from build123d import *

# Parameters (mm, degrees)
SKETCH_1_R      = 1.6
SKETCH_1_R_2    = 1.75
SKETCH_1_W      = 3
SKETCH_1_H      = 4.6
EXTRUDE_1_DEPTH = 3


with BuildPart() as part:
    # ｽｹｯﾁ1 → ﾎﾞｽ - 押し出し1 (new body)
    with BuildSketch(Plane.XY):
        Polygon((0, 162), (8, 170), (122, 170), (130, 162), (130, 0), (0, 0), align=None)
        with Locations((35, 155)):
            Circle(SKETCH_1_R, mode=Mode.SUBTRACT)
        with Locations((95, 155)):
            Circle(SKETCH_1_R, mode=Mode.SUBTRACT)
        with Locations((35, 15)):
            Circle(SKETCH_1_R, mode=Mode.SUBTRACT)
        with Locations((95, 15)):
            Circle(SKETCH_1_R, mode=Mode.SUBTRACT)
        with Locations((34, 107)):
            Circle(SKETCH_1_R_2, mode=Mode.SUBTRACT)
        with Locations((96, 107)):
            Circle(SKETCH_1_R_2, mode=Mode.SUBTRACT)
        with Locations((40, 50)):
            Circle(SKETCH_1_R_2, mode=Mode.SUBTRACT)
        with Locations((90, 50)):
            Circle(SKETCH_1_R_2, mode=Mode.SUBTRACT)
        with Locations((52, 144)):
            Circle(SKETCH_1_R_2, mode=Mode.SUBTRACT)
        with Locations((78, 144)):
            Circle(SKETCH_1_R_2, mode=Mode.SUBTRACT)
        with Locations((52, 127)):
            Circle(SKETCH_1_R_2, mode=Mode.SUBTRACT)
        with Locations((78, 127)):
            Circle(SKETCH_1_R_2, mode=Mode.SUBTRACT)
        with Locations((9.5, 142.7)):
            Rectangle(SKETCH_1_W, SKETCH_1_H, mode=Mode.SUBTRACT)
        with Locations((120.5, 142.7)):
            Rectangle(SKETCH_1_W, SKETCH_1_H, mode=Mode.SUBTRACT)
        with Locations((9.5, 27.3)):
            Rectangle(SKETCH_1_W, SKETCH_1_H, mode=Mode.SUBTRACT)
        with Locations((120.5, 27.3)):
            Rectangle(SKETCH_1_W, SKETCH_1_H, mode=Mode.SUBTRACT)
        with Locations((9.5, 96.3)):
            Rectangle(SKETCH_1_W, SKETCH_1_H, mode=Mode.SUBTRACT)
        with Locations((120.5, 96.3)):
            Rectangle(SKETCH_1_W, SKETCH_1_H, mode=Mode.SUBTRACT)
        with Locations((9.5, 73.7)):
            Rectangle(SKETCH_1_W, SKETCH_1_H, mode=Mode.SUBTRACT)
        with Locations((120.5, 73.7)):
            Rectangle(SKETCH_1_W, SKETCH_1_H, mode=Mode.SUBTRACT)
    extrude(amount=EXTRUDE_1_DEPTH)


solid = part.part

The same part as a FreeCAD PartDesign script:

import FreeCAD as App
import Part
import Sketcher
Q = App.Units.Quantity

doc = App.newDocument("Part")
body = doc.addObject("PartDesign::Body", "Body")

sketch1 = doc.addObject("Sketcher::SketchObject", "Sketch")
body.addObject(sketch1)
sketch1.AttachmentSupport = (doc.XY_Plane, [""])
sketch1.MapMode = "FlatFace"
sketch1.addGeometry([
    Part.LineSegment(App.Vector(8, 170, 0), App.Vector(0, 162, 0)),
    Part.LineSegment(App.Vector(0, 162, 0), App.Vector(0, 0, 0)),
    Part.LineSegment(App.Vector(0, 0, 0), App.Vector(130, 0, 0)),
    Part.LineSegment(App.Vector(130, 0, 0), App.Vector(130, 162, 0)),
    Part.LineSegment(App.Vector(130, 162, 0), App.Vector(122, 170, 0)),
    Part.LineSegment(App.Vector(122, 170, 0), App.Vector(8, 170, 0)),
    Part.LineSegment(App.Vector(119, 25, 0), App.Vector(119, 29.6, 0)),
    Part.LineSegment(App.Vector(119, 29.6, 0), App.Vector(122, 29.6, 0)),
    Part.LineSegment(App.Vector(122, 29.6, 0), App.Vector(122, 25, 0)),
    Part.LineSegment(App.Vector(122, 25, 0), App.Vector(119, 25, 0)),
    Part.Circle(App.Vector(95, 15, 0), App.Vector(0, 0, 1), 1.6),
    Part.LineSegment(App.Vector(119, 71.4, 0), App.Vector(119, 76, 0)),
    Part.LineSegment(App.Vector(119, 76, 0), App.Vector(122, 76, 0)),
    Part.LineSegment(App.Vector(122, 76, 0), App.Vector(122, 71.4, 0)),
    Part.LineSegment(App.Vector(122, 71.4, 0), App.Vector(119, 71.4, 0)),
    Part.Circle(App.Vector(90, 50, 0), App.Vector(0, 0, 1), 1.8),
    Part.Circle(App.Vector(35, 15, 0), App.Vector(0, 0, 1), 1.6),
    Part.LineSegment(App.Vector(8, 25, 0), App.Vector(8, 29.6, 0)),
    Part.LineSegment(App.Vector(8, 29.6, 0), App.Vector(11, 29.6, 0)),
    Part.LineSegment(App.Vector(11, 29.6, 0), App.Vector(11, 25, 0)),
    Part.LineSegment(App.Vector(11, 25, 0), App.Vector(8, 25, 0)),
    Part.Circle(App.Vector(40, 50, 0), App.Vector(0, 0, 1), 1.8),
    Part.LineSegment(App.Vector(8, 71.4, 0), App.Vector(8, 76, 0)),
    Part.LineSegment(App.Vector(8, 76, 0), App.Vector(11, 76, 0)),
    Part.LineSegment(App.Vector(11, 76, 0), App.Vector(11, 71.4, 0)),
    Part.LineSegment(App.Vector(11, 71.4, 0), App.Vector(8, 71.4, 0)),
    Part.LineSegment(App.Vector(119, 94, 0), App.Vector(119, 98.6, 0)),
    Part.LineSegment(App.Vector(119, 98.6, 0), App.Vector(122, 98.6, 0)),
    Part.LineSegment(App.Vector(122, 98.6, 0), App.Vector(122, 94, 0)),
    Part.LineSegment(App.Vector(122, 94, 0), App.Vector(119, 94, 0)),
    Part.Circle(App.Vector(96, 107, 0), App.Vector(0, 0, 1), 1.8),
    Part.LineSegment(App.Vector(119, 140.4, 0), App.Vector(119, 145, 0)),
    Part.LineSegment(App.Vector(119, 145, 0), App.Vector(122, 145, 0)),
    Part.LineSegment(App.Vector(122, 145, 0), App.Vector(122, 140.4, 0)),
    Part.LineSegment(App.Vector(122, 140.4, 0), App.Vector(119, 140.4, 0)),
    Part.Circle(App.Vector(95, 155, 0), App.Vector(0, 0, 1), 1.6),
    Part.Circle(App.Vector(78, 127, 0), App.Vector(0, 0, 1), 1.8),
    Part.Circle(App.Vector(78, 144, 0), App.Vector(0, 0, 1), 1.8),
    Part.LineSegment(App.Vector(8, 94, 0), App.Vector(8, 98.6, 0)),
    Part.LineSegment(App.Vector(8, 98.6, 0), App.Vector(11, 98.6, 0)),
    Part.LineSegment(App.Vector(11, 98.6, 0), App.Vector(11, 94, 0)),
    Part.LineSegment(App.Vector(11, 94, 0), App.Vector(8, 94, 0)),
    Part.Circle(App.Vector(34, 107, 0), App.Vector(0, 0, 1), 1.8),
    Part.Circle(App.Vector(52, 127, 0), App.Vector(0, 0, 1), 1.8),
    Part.Circle(App.Vector(52, 144, 0), App.Vector(0, 0, 1), 1.8),
    Part.Circle(App.Vector(35, 155, 0), App.Vector(0, 0, 1), 1.6),
    Part.LineSegment(App.Vector(8, 140.4, 0), App.Vector(8, 145, 0)),
    Part.LineSegment(App.Vector(8, 145, 0), App.Vector(11, 145, 0)),
    Part.LineSegment(App.Vector(11, 145, 0), App.Vector(11, 140.4, 0)),
    Part.LineSegment(App.Vector(11, 140.4, 0), App.Vector(8, 140.4, 0)),
], False)
sketch1.addConstraint([
    Sketcher.Constraint("Coincident", 0, 2, 1, 1),
    Sketcher.Constraint("Coincident", 1, 2, 2, 1),
    Sketcher.Constraint("Coincident", 2, 2, 3, 1),
    Sketcher.Constraint("Coincident", 3, 2, 4, 1),
    Sketcher.Constraint("Coincident", 4, 2, 5, 1),
    Sketcher.Constraint("Coincident", 5, 2, 0, 1),
    Sketcher.Constraint("Coincident", 6, 2, 7, 1),
    Sketcher.Constraint("Coincident", 7, 2, 8, 1),
    Sketcher.Constraint("Coincident", 8, 2, 9, 1),
    Sketcher.Constraint("Coincident", 9, 2, 6, 1),
    Sketcher.Constraint("Coincident", 11, 2, 12, 1),
    Sketcher.Constraint("Coincident", 12, 2, 13, 1),
    Sketcher.Constraint("Coincident", 13, 2, 14, 1),
    Sketcher.Constraint("Coincident", 14, 2, 11, 1),
    Sketcher.Constraint("Coincident", 17, 2, 18, 1),
    Sketcher.Constraint("Coincident", 18, 2, 19, 1),
    Sketcher.Constraint("Coincident", 19, 2, 20, 1),
    Sketcher.Constraint("Coincident", 20, 2, 17, 1),
    Sketcher.Constraint("Coincident", 22, 2, 23, 1),
    Sketcher.Constraint("Coincident", 23, 2, 24, 1),
    Sketcher.Constraint("Coincident", 24, 2, 25, 1),
    Sketcher.Constraint("Coincident", 25, 2, 22, 1),
    Sketcher.Constraint("Coincident", 26, 2, 27, 1),
    Sketcher.Constraint("Coincident", 27, 2, 28, 1),
    Sketcher.Constraint("Coincident", 28, 2, 29, 1),
    Sketcher.Constraint("Coincident", 29, 2, 26, 1),
    Sketcher.Constraint("Coincident", 31, 2, 32, 1),
    Sketcher.Constraint("Coincident", 32, 2, 33, 1),
    Sketcher.Constraint("Coincident", 33, 2, 34, 1),
    Sketcher.Constraint("Coincident", 34, 2, 31, 1),
    Sketcher.Constraint("Coincident", 38, 2, 39, 1),
    Sketcher.Constraint("Coincident", 39, 2, 40, 1),
    Sketcher.Constraint("Coincident", 40, 2, 41, 1),
    Sketcher.Constraint("Coincident", 41, 2, 38, 1),
    Sketcher.Constraint("Coincident", 46, 2, 47, 1),
    Sketcher.Constraint("Coincident", 47, 2, 48, 1),
    Sketcher.Constraint("Coincident", 48, 2, 49, 1),
    Sketcher.Constraint("Coincident", 49, 2, 46, 1),
    Sketcher.Constraint("Vertical", 1),
    Sketcher.Constraint("Horizontal", 2),
    Sketcher.Constraint("Vertical", 3),
    Sketcher.Constraint("Horizontal", 5),
    Sketcher.Constraint("Vertical", 6),
    Sketcher.Constraint("Horizontal", 7),
    Sketcher.Constraint("Vertical", 8),
    Sketcher.Constraint("Horizontal", 9),
    Sketcher.Constraint("Vertical", 11),
    Sketcher.Constraint("Horizontal", 12),
    Sketcher.Constraint("Vertical", 13),
    Sketcher.Constraint("Horizontal", 14),
    Sketcher.Constraint("Vertical", 17),
    Sketcher.Constraint("Horizontal", 18),
    Sketcher.Constraint("Vertical", 19),
    Sketcher.Constraint("Horizontal", 20),
    Sketcher.Constraint("Vertical", 22),
    Sketcher.Constraint("Horizontal", 23),
    Sketcher.Constraint("Vertical", 24),
    Sketcher.Constraint("Horizontal", 25),
    Sketcher.Constraint("Vertical", 26),
    Sketcher.Constraint("Horizontal", 27),
    Sketcher.Constraint("Vertical", 28),
    Sketcher.Constraint("Horizontal", 29),
    Sketcher.Constraint("Vertical", 31),
    Sketcher.Constraint("Horizontal", 32),
    Sketcher.Constraint("Vertical", 33),
    Sketcher.Constraint("Horizontal", 34),
    Sketcher.Constraint("Vertical", 38),
    Sketcher.Constraint("Horizontal", 39),
    Sketcher.Constraint("Vertical", 40),
    Sketcher.Constraint("Horizontal", 41),
    Sketcher.Constraint("Vertical", 46),
    Sketcher.Constraint("Horizontal", 47),
    Sketcher.Constraint("Vertical", 48),
    Sketcher.Constraint("Horizontal", 49),
    Sketcher.Constraint("Coincident", 1, 2, -1, 1),
    Sketcher.Constraint("Equal", 10, 16),
    Sketcher.Constraint("Equal", 15, 21),
    Sketcher.Constraint("Equal", 21, 30),
    Sketcher.Constraint("Equal", 16, 35),
    Sketcher.Constraint("Equal", 30, 36),
    Sketcher.Constraint("Equal", 36, 37),
    Sketcher.Constraint("Equal", 37, 42),
    Sketcher.Constraint("Equal", 42, 43),
    Sketcher.Constraint("Equal", 43, 44),
    Sketcher.Constraint("Equal", 35, 45),
    Sketcher.Constraint("Perpendicular", 0, 4),
    Sketcher.Constraint("Horizontal", 10, 3, 16, 3),
    Sketcher.Constraint("Horizontal", 15, 3, 21, 3),
    Sketcher.Constraint("Horizontal", 30, 3, 42, 3),
    Sketcher.Constraint("Horizontal", 36, 3, 43, 3),
    Sketcher.Constraint("Horizontal", 37, 3, 44, 3),
    Sketcher.Constraint("Horizontal", 35, 3, 45, 3),
    Sketcher.Constraint("Horizontal", 0, 2, 3, 2),
    Sketcher.Constraint("Horizontal", 7, 2, 17, 2),
    Sketcher.Constraint("Horizontal", 9, 2, 19, 2),
    Sketcher.Constraint("Horizontal", 12, 2, 22, 2),
    Sketcher.Constraint("Horizontal", 14, 2, 24, 2),
    Sketcher.Constraint("Horizontal", 27, 2, 38, 2),
    Sketcher.Constraint("Horizontal", 29, 2, 40, 2),
    Sketcher.Constraint("Horizontal", 32, 2, 46, 2),
    Sketcher.Constraint("Horizontal", 34, 2, 48, 2),
    Sketcher.Constraint("Vertical", 10, 3, 35, 3),
    Sketcher.Constraint("Vertical", 36, 3, 37, 3),
    Sketcher.Constraint("Vertical", 43, 3, 44, 3),
    Sketcher.Constraint("Vertical", 16, 3, 45, 3),
    Sketcher.Constraint("Vertical", 4, 2, 7, 2),
    Sketcher.Constraint("Vertical", 9, 2, 11, 2),
    Sketcher.Constraint("Vertical", 8, 2, 12, 2),
    Sketcher.Constraint("Vertical", 5, 2, 17, 2),
    Sketcher.Constraint("Vertical", 20, 2, 22, 2),
    Sketcher.Constraint("Vertical", 19, 2, 23, 2),
    Sketcher.Constraint("Vertical", 14, 2, 26, 2),
    Sketcher.Constraint("Vertical", 13, 2, 27, 2),
    Sketcher.Constraint("Vertical", 29, 2, 31, 2),
    Sketcher.Constraint("Vertical", 28, 2, 32, 2),
    Sketcher.Constraint("Vertical", 25, 2, 38, 2),
    Sketcher.Constraint("Vertical", 24, 2, 39, 2),
    Sketcher.Constraint("Vertical", 41, 2, 46, 2),
    Sketcher.Constraint("Vertical", 40, 2, 47, 2),
    Sketcher.Constraint("Equal", 14, 18),
    Sketcher.Constraint("Equal", 8, 11),
    Sketcher.Constraint("Equal", 24, 26),
    Sketcher.Constraint("Equal", 28, 31),
    Sketcher.Constraint("Equal", 0, 4),
    Sketcher.Constraint("Diameter", 10, Q("3.2 mm")),
    Sketcher.Constraint("Diameter", 15, Q("3.5 mm")),
    Sketcher.Constraint("DistanceX", 2, 1, 2, 2, Q("130 mm")),
    Sketcher.Constraint("DistanceX", 5, 2, 5, 1, Q("114 mm")),
    Sketcher.Constraint("DistanceX", 7, 1, 7, 2, Q("3 mm")),
    Sketcher.Constraint("DistanceY", 1, 2, 1, 1, Q("162 mm")),
    Sketcher.Constraint("DistanceY", 6, 1, 6, 2, Q("4.6 mm")),
    Sketcher.Constraint("DistanceX", -1, 1, 10, 3, Q("95 mm")),
    Sketcher.Constraint("DistanceY", -1, 1, 10, 3, Q("15 mm")),
    Sketcher.Constraint("DistanceX", -1, 1, 15, 3, Q("90 mm")),
    Sketcher.Constraint("DistanceY", -1, 1, 15, 3, Q("50 mm")),
    Sketcher.Constraint("DistanceX", -1, 1, 16, 3, Q("35 mm")),
    Sketcher.Constraint("DistanceX", -1, 1, 21, 3, Q("40 mm")),
    Sketcher.Constraint("DistanceX", -1, 1, 30, 3, Q("96 mm")),
    Sketcher.Constraint("DistanceY", -1, 1, 30, 3, Q("107 mm")),
    Sketcher.Constraint("DistanceY", -1, 1, 35, 3, Q("155 mm")),
    Sketcher.Constraint("DistanceX", -1, 1, 36, 3, Q("78 mm")),
    Sketcher.Constraint("DistanceY", -1, 1, 36, 3, Q("127 mm")),
    Sketcher.Constraint("DistanceY", -1, 1, 37, 3, Q("144 mm")),
    Sketcher.Constraint("DistanceX", -1, 1, 42, 3, Q("34 mm")),
    Sketcher.Constraint("DistanceX", -1, 1, 43, 3, Q("52 mm")),
    Sketcher.Constraint("DistanceY", -1, 1, 8, 2, Q("25 mm")),
    Sketcher.Constraint("DistanceY", -1, 1, 11, 2, Q("76 mm")),
    Sketcher.Constraint("DistanceY", -1, 1, 28, 2, Q("94 mm")),
    Sketcher.Constraint("DistanceY", -1, 1, 31, 2, Q("145 mm")),
])
pad1 = doc.addObject("PartDesign::Pad", "Pad")
body.addObject(pad1)
pad1.Profile = sketch1
pad1.Length = 3

doc.recompute()
